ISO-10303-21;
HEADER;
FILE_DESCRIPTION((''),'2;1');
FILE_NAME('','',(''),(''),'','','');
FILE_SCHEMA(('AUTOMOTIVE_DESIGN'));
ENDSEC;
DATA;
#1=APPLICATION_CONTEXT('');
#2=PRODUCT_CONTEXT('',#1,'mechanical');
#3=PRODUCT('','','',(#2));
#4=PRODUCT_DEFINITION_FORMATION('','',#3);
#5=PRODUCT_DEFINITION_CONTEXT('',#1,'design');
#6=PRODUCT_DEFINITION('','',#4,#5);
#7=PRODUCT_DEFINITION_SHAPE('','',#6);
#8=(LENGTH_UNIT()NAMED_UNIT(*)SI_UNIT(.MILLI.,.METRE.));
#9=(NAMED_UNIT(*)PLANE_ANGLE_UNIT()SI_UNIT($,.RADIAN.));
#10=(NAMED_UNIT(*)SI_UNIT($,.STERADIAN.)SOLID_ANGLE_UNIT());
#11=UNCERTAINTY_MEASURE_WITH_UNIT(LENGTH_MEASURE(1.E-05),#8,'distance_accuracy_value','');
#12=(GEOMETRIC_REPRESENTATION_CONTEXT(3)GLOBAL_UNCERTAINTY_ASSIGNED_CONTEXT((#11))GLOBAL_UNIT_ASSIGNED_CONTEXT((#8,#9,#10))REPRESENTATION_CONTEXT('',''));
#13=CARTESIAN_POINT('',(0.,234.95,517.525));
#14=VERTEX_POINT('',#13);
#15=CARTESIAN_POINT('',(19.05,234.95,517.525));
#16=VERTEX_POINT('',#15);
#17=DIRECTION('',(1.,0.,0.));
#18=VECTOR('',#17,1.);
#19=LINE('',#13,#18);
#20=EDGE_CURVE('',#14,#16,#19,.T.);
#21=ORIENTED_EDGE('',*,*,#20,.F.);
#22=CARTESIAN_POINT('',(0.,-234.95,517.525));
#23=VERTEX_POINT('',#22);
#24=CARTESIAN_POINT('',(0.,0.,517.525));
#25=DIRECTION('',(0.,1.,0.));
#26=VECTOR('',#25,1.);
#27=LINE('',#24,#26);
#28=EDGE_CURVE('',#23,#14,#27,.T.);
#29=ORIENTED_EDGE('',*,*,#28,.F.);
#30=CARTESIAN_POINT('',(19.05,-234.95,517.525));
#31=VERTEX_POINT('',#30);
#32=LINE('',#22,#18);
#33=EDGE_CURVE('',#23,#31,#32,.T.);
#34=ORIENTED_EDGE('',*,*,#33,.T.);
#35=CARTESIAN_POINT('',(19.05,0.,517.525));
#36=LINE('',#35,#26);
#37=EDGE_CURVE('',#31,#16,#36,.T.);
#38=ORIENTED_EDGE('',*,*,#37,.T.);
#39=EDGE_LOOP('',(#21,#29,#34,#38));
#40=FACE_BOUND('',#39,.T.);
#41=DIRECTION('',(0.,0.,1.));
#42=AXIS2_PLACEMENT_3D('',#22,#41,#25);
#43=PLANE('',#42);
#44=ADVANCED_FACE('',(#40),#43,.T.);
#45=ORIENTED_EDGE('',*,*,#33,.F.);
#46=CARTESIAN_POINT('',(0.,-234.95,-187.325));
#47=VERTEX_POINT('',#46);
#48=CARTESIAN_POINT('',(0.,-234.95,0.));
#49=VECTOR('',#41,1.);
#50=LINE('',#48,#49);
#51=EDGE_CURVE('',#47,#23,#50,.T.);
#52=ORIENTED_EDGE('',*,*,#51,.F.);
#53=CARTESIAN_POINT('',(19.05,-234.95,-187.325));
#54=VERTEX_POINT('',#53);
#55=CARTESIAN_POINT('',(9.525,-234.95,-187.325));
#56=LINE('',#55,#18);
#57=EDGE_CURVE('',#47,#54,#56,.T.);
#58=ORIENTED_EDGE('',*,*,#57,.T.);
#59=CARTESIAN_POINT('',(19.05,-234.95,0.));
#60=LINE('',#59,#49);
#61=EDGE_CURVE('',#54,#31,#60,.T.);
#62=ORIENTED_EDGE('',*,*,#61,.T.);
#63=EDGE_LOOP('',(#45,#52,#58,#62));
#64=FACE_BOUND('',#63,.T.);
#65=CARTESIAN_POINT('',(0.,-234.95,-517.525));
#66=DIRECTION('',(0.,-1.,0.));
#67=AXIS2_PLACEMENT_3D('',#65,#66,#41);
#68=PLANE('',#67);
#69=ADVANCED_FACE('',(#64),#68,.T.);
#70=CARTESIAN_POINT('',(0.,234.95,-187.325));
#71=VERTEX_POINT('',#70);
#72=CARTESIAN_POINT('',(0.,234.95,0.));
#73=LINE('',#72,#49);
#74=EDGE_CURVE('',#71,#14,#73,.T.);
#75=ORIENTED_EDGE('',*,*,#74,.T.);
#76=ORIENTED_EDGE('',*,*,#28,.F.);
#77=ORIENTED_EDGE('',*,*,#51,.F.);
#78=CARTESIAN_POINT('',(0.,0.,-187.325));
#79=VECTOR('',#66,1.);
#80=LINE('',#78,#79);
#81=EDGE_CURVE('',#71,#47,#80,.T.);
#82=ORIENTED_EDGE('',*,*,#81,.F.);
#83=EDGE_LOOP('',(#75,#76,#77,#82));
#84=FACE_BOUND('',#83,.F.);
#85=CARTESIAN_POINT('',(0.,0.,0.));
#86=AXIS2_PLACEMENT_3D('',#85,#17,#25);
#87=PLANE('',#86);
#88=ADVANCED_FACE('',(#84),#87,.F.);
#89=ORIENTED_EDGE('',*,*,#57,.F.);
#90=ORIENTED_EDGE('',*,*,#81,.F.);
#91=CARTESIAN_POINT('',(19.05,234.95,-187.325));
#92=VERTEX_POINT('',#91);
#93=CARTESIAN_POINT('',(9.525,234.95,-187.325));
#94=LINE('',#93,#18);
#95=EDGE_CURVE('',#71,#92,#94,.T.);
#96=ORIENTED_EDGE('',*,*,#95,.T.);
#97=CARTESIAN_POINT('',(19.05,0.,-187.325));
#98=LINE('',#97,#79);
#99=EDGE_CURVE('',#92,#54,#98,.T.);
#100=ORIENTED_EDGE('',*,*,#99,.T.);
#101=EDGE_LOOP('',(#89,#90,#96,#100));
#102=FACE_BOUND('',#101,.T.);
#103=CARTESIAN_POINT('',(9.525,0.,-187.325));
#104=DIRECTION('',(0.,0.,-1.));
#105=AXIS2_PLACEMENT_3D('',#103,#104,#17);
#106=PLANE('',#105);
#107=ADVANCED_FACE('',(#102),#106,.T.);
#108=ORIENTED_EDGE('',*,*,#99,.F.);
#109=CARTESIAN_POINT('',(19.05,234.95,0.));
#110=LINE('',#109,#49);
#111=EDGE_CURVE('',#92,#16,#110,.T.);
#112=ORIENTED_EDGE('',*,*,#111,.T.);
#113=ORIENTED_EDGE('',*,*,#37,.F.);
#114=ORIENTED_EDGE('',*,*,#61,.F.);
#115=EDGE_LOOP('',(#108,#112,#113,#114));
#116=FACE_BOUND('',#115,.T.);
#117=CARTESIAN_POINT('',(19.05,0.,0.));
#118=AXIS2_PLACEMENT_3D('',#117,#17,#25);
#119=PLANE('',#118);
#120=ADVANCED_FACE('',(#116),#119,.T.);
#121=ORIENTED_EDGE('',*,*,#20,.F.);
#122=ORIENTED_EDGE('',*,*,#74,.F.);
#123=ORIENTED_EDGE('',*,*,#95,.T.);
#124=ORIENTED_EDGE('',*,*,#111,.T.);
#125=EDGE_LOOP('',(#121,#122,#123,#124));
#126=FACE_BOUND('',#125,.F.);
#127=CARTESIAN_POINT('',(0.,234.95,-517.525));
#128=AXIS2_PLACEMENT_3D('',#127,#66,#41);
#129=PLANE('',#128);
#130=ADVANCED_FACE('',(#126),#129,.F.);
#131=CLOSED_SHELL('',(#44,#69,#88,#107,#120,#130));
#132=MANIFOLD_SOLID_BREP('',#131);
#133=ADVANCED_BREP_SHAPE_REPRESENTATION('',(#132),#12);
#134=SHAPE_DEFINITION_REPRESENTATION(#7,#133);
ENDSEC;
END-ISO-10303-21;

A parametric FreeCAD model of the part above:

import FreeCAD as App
import Part
import Sketcher
Q = App.Units.Quantity

doc = App.newDocument("Part")
body = doc.addObject("PartDesign::Body", "Body")

# Sketch on YZ plane
sketch1 = doc.addObject("Sketcher::SketchObject", "Sketch")
body.addObject(sketch1)
sketch1.AttachmentSupport = (doc.YZ_Plane, [""])
sketch1.MapMode = "FlatFace"
sketch1.addGeometry([
    Part.LineSegment(App.Vector(-235, 518, 0), App.Vector(-235, -518, 0)),
    Part.LineSegment(App.Vector(-235, -518, 0), App.Vector(235, -518, 0)),
    Part.LineSegment(App.Vector(235, -518, 0), App.Vector(235, 518, 0)),
    Part.LineSegment(App.Vector(235, 518, 0), App.Vector(-235, 518, 0)),
], False)
sketch1.addConstraint([
    Sketcher.Constraint("Coincident", 0, 2, 1, 1),
    Sketcher.Constraint("Coincident", 1, 2, 2, 1),
    Sketcher.Constraint("Coincident", 2, 2, 3, 1),
    Sketcher.Constraint("Coincident", 3, 2, 0, 1),
    Sketcher.Constraint("Vertical", 0),
    Sketcher.Constraint("Horizontal", 1),
    Sketcher.Constraint("Vertical", 2),
    Sketcher.Constraint("Horizontal", 3),
    Sketcher.Constraint("Symmetric", 0, 2, 2, 2, -1, 1),
    Sketcher.Constraint("DistanceX", 1, 1, 1, 2, Q("18.5 in")),
    Sketcher.Constraint("DistanceY", 0, 2, 0, 1, Q("40.75 in")),
])
pad1 = doc.addObject("PartDesign::Pad", "Pad")
body.addObject(pad1)
pad1.Profile = sketch1
pad1.Length = Q("0.75 in")

# Sketch on XY plane
sketch2 = doc.addObject("Sketcher::SketchObject", "Sketch001")
body.addObject(sketch2)
sketch2.AttachmentSupport = (doc.XY_Plane, [""])
sketch2.MapMode = "FlatFace"
sketch2.AttachmentOffset = App.Placement(App.Vector(0, 0, -20.375 * 25.4), App.Rotation())
sketch2.addGeometry([
    Part.LineSegment(App.Vector(0, -235, 0), App.Vector(0, 235, 0)),
    Part.LineSegment(App.Vector(0, 235, 0), App.Vector(19, 235, 0)),
    Part.LineSegment(App.Vector(19, 235, 0), App.Vector(19, -235, 0)),
    Part.LineSegment(App.Vector(19, -235, 0), App.Vector(0, -235, 0)),
], False)
sketch2.addConstraint([
    Sketcher.Constraint("Coincident", 0, 2, 1, 1),
    Sketcher.Constraint("Coincident", 1, 2, 2, 1),
    Sketcher.Constraint("Coincident", 2, 2, 3, 1),
    Sketcher.Constraint("Coincident", 3, 2, 0, 1),
    Sketcher.Constraint("Vertical", 0),
    Sketcher.Constraint("Horizontal", 1),
    Sketcher.Constraint("Vertical", 2),
    Sketcher.Constraint("Horizontal", 3),
    Sketcher.Constraint("Symmetric", 0, 2, 3, 2, -1, 1),
    Sketcher.Constraint("DistanceY", 0, 1, 0, 2, Q("18.5 in")),
    Sketcher.Constraint("DistanceX", 1, 1, 1, 2, Q("0.75 in")),
])
pocket1 = doc.addObject("PartDesign::Pocket", "Pocket")
body.addObject(pocket1)
pocket1.Profile = sketch2
pocket1.Length = Q("13 in")
pocket1.Reversed = True

doc.recompute()
